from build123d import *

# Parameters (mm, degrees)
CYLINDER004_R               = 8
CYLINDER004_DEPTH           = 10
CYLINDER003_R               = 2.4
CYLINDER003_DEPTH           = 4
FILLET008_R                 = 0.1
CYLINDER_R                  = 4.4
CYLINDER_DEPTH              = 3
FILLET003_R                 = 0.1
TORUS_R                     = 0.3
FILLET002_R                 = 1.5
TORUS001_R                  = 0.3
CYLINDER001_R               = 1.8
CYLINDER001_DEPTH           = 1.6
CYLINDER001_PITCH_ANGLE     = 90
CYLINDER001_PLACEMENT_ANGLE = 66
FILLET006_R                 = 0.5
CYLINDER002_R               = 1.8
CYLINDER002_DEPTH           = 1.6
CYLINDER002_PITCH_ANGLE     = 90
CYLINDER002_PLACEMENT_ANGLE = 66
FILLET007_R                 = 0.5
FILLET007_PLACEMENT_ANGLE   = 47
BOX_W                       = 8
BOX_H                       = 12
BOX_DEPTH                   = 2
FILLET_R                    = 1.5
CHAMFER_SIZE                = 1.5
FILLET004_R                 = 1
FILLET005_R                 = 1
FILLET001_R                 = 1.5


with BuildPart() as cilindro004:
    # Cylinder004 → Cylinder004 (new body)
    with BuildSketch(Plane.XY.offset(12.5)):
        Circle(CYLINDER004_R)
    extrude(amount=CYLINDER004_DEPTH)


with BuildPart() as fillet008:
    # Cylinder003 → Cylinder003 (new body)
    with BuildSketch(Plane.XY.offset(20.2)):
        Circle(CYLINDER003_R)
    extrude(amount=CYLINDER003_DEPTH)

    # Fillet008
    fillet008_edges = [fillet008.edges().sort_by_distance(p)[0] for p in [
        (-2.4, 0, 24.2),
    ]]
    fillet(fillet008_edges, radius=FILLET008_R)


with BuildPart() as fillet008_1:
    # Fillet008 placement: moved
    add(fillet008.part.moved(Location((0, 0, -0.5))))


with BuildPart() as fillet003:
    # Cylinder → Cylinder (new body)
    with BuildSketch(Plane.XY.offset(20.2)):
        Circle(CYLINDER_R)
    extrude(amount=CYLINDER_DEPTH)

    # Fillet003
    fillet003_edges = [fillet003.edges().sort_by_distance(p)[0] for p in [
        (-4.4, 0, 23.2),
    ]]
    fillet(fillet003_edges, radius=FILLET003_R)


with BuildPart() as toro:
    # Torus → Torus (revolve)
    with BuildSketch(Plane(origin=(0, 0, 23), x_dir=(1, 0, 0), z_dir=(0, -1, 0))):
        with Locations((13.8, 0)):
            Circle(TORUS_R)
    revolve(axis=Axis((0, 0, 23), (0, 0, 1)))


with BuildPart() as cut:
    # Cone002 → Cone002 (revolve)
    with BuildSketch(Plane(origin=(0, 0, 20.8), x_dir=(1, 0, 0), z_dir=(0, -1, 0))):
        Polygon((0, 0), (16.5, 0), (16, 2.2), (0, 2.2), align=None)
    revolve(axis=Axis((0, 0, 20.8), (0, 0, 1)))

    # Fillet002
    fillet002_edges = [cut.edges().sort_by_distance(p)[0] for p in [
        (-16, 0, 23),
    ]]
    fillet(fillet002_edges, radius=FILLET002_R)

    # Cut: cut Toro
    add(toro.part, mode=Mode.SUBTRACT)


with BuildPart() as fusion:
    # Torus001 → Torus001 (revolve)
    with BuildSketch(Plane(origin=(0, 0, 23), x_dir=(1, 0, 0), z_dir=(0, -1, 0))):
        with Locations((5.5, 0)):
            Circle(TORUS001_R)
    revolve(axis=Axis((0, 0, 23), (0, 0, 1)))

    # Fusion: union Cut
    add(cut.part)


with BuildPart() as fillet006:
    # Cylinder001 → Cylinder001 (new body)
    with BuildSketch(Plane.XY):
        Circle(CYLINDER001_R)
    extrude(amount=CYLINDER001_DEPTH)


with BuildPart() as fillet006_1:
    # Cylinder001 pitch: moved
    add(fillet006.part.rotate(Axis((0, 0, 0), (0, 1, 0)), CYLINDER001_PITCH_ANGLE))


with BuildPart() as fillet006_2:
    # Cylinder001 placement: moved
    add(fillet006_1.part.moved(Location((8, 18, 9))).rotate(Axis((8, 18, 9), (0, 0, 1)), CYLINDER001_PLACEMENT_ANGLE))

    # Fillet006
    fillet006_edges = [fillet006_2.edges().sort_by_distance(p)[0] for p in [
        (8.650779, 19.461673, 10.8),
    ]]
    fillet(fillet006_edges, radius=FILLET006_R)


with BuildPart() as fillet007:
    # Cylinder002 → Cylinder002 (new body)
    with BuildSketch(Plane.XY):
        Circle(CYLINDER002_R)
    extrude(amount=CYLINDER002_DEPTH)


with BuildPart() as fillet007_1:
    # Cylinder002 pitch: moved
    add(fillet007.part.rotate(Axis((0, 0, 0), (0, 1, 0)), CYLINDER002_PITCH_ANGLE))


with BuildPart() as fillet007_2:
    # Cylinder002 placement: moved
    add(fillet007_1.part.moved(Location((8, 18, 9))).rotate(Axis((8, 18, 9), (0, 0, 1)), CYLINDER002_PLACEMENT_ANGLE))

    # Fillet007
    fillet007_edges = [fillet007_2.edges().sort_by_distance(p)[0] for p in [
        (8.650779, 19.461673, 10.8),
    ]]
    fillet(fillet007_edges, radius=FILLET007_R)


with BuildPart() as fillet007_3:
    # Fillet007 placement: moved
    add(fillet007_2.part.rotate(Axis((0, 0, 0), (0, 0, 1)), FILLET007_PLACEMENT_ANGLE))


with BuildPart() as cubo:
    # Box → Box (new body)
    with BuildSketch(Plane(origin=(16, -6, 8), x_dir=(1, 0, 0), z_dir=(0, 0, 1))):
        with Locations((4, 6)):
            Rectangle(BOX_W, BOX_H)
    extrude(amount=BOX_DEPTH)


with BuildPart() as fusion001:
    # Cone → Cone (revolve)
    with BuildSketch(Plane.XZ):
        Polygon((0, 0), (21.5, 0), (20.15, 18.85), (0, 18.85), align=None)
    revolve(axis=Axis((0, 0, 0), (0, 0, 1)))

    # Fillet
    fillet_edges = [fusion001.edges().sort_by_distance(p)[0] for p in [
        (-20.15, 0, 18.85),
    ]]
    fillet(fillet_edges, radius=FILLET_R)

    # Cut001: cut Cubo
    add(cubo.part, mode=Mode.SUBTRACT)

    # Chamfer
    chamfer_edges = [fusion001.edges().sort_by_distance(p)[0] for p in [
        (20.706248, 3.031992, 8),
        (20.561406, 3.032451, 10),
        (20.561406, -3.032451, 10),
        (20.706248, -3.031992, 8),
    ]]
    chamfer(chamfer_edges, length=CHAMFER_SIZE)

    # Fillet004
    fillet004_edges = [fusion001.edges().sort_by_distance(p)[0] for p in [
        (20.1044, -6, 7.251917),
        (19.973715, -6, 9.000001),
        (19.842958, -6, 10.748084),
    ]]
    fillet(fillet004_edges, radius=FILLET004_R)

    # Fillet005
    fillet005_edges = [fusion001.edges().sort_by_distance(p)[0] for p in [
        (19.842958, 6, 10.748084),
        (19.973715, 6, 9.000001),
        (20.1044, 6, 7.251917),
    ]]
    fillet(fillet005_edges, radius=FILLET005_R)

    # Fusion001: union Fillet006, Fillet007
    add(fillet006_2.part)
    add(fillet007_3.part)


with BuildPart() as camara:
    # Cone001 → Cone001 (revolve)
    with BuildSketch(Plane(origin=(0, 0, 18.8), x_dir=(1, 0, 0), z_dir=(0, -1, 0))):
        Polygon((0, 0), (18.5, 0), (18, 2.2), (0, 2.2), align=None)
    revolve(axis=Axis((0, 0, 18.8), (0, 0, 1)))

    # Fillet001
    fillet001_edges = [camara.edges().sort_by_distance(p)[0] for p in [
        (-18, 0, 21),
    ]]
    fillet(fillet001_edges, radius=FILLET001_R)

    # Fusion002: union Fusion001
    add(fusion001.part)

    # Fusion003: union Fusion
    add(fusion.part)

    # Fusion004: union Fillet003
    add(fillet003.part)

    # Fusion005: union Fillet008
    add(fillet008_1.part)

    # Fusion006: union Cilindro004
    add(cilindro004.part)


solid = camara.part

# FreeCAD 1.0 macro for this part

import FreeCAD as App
import Part
import Sketcher
from FreeCAD import Vector


def edges_at(feature, points):
    """Names of the edges that pass closest to the given points."""
    edges = feature.Shape.Edges
    near = lambda p: min(range(len(edges)), key=lambda i: edges[i].distToShape(Part.Vertex(*p))[0])
    return sorted({f"Edge{near(p) + 1}" for p in points})


def add_polygon(sketch, points):
    """Adds a closed chain of lines whose ends are joined by coincident constraints."""
    first, n = sketch.GeometryCount, len(points)
    for a, b in zip(points, points[1:] + points[:1]):
        sketch.addGeometry(Part.LineSegment(App.Vector(*a, 0), App.Vector(*b, 0)), False)
    for i in range(n):
        sketch.addConstraint(Sketcher.Constraint("Coincident", first + i, 2, first + (i + 1) % n, 1))

doc = App.newDocument("Part")
body = doc.addObject("PartDesign::Body", "Body")

sketch1 = body.newObject("Sketcher::SketchObject", "Sketch")
sketch1.AttachmentSupport = (doc.getObject("XY_Plane"), [""])
sketch1.MapMode = "FlatFace"
sketch1.AttachmentOffset = App.Placement(Vector(0, 0, 12.5), App.Rotation())
sketch1.addGeometry(Part.Circle(Vector(0, 0, 0), Vector(0, 0, 1), 8), False)
sketch1.addConstraint([
    Sketcher.Constraint("Coincident", 0, 3, -1, 1),
    Sketcher.Constraint("Diameter", 0, 16.0),
])
pad1 = body.newObject("PartDesign::Pad", "Pad")
pad1.Profile = sketch1
pad1.Length = 10
body2 = doc.addObject("PartDesign::Body", "Body001")

sketch2 = body2.newObject("Sketcher::SketchObject", "Sketch001")
sketch2.AttachmentSupport = (doc.getObject("XY_Plane001"), [""])
sketch2.MapMode = "FlatFace"
sketch2.AttachmentOffset = App.Placement(Vector(0, 0, 20.2), App.Rotation())
sketch2.addGeometry(Part.Circle(Vector(0, 0, 0), Vector(0, 0, 1), 2.4), False)
sketch2.addConstraint([
    Sketcher.Constraint("Coincident", 0, 3, -1, 1),
    Sketcher.Constraint("Diameter", 0, 4.8),
])
pad2 = body2.newObject("PartDesign::Pad", "Pad001")
pad2.Profile = sketch2
pad2.Length = 4
doc.recompute()

fillet = body2.newObject("PartDesign::Fillet", "Fillet")
fillet.Base = (pad2, edges_at(pad2, [(-2.4, 0, 24.2)]))
fillet.Radius = 0.1
body3 = doc.addObject("PartDesign::Body", "Body002")
doc.recompute()

body2.Placement = App.Placement(Vector(0, 0, -0.5), App.Rotation(Vector(0, 0, 1), 0))
boolean = body3.newObject("PartDesign::Boolean", "Boolean")
boolean.Type = "Fuse"
boolean.addObjects([body2])
body4 = doc.addObject("PartDesign::Body", "Body003")

sketch3 = body4.newObject("Sketcher::SketchObject", "Sketch002")
sketch3.AttachmentSupport = (doc.getObject("XY_Plane003"), [""])
sketch3.MapMode = "FlatFace"
sketch3.AttachmentOffset = App.Placement(Vector(0, 0, 20.2), App.Rotation())
sketch3.addGeometry(Part.Circle(Vector(0, 0, 0), Vector(0, 0, 1), 4.4), False)
sketch3.addConstraint([
    Sketcher.Constraint("Coincident", 0, 3, -1, 1),
    Sketcher.Constraint("Diameter", 0, 8.8),
])
pad3 = body4.newObject("PartDesign::Pad", "Pad002")
pad3.Profile = sketch3
pad3.Length = 3
doc.recompute()

fillet2 = body4.newObject("PartDesign::Fillet", "Fillet001")
fillet2.Base = (pad3, edges_at(pad3, [(-4.4, 0, 23.2)]))
fillet2.Radius = 0.1
body5 = doc.addObject("PartDesign::Body", "Body004")

sketch4 = body5.newObject("Sketcher::SketchObject", "Sketch003")
sketch4.AttachmentSupport = (doc.getObject("XZ_Plane004"), [""])
sketch4.MapMode = "FlatFace"
sketch4.addGeometry(Part.Circle(Vector(13.8, 23, 0), Vector(0, 0, 1), 0.3), False)
sketch4.addConstraint([
    Sketcher.Constraint("Diameter", 0, 0.6),
    Sketcher.Constraint("DistanceY", -1, 1, 0, 3, 23.0),
    Sketcher.Constraint("DistanceX", -1, 1, 0, 3, 13.8),
])
revolution = body5.newObject("PartDesign::Revolution", "Revolution")
revolution.Profile = sketch4
revolution.ReferenceAxis = (sketch4, ["V_Axis"])
revolution.Angle = 360
body6 = doc.addObject("PartDesign::Body", "Body005")

sketch5 = body6.newObject("Sketcher::SketchObject", "Sketch004")
sketch5.AttachmentSupport = (doc.getObject("XZ_Plane005"), [""])
sketch5.MapMode = "FlatFace"
add_polygon(sketch5, [(0, 20.8), (16.5, 20.8), (16, 23), (0, 23)])
sketch5.addConstraint([
    Sketcher.Constraint("Horizontal", 0),
    Sketcher.Constraint("Horizontal", 2),
    Sketcher.Constraint("Vertical", 3),
    Sketcher.Constraint("PointOnObject", 2, 2, -2),
    Sketcher.Constraint("DistanceX", 2, 2, 2, 1, 16.0),
    Sketcher.Constraint("DistanceX", 0, 1, 0, 2, 16.5),
    Sketcher.Constraint("DistanceY", 3, 2, 3, 1, 2.2),
    Sketcher.Constraint("DistanceY", -1, 1, 1, 2, 23.0),
])
revolution2 = body6.newObject("PartDesign::Revolution", "Revolution001")
revolution2.Profile = sketch5
revolution2.ReferenceAxis = (sketch5, ["V_Axis"])
revolution2.Angle = 360
doc.recompute()

fillet3 = body6.newObject("PartDesign::Fillet", "Fillet002")
fillet3.Base = (revolution2, edges_at(revolution2, [(-16, 0, 23)]))
fillet3.Radius = 1.5
doc.recompute()

boolean2 = body6.newObject("PartDesign::Boolean", "Boolean001")
boolean2.Type = "Cut"
boolean2.addObjects([body5])
body7 = doc.addObject("PartDesign::Body", "Body006")

sketch6 = body7.newObject("Sketcher::SketchObject", "Sketch005")
sketch6.AttachmentSupport = (doc.getObject("XZ_Plane006"), [""])
sketch6.MapMode = "FlatFace"
sketch6.addGeometry(Part.Circle(Vector(5.5, 23, 0), Vector(0, 0, 1), 0.3), False)
sketch6.addConstraint([
    Sketcher.Constraint("Diameter", 0, 0.6),
    Sketcher.Constraint("DistanceY", -1, 1, 0, 3, 23.0),
    Sketcher.Constraint("DistanceX", -1, 1, 0, 3, 5.5),
])
revolution3 = body7.newObject("PartDesign::Revolution", "Revolution002")
revolution3.Profile = sketch6
revolution3.ReferenceAxis = (sketch6, ["V_Axis"])
revolution3.Angle = 360
doc.recompute()

boolean3 = body7.newObject("PartDesign::Boolean", "Boolean002")
boolean3.Type = "Fuse"
boolean3.addObjects([body6])
body8 = doc.addObject("PartDesign::Body", "Body007")

sketch7 = body8.newObject("Sketcher::SketchObject", "Sketch006")
sketch7.AttachmentSupport = (doc.getObject("XY_Plane007"), [""])
sketch7.MapMode = "FlatFace"
sketch7.addGeometry(Part.Circle(Vector(0, 0, 0), Vector(0, 0, 1), 1.8), False)
sketch7.addConstraint([
    Sketcher.Constraint("Coincident", 0, 3, -1, 1),
    Sketcher.Constraint("Diameter", 0, 3.6),
])
pad4 = body8.newObject("PartDesign::Pad", "Pad003")
pad4.Profile = sketch7
pad4.Length = 1.6
body9 = doc.addObject("PartDesign::Body", "Body008")
doc.recompute()

body8.Placement = App.Placement(Vector(0, 0, 0), App.Rotation(Vector(0, 1, 0), 90))
boolean4 = body9.newObject("PartDesign::Boolean", "Boolean003")
boolean4.Type = "Fuse"
boolean4.addObjects([body8])
body10 = doc.addObject("PartDesign::Body", "Body009")
doc.recompute()

body9.Placement = App.Placement(Vector(8, 18, 9), App.Rotation(Vector(0, 0, 1), 66))
boolean5 = body10.newObject("PartDesign::Boolean", "Boolean004")
boolean5.Type = "Fuse"
boolean5.addObjects([body9])
doc.recompute()

fillet4 = body10.newObject("PartDesign::Fillet", "Fillet003")
fillet4.Base = (boolean5, edges_at(boolean5, [(8.651, 19.462, 10.8)]))
fillet4.Radius = 0.5
body11 = doc.addObject("PartDesign::Body", "Body010")

sketch8 = body11.newObject("Sketcher::SketchObject", "Sketch007")
sketch8.AttachmentSupport = (doc.getObject("XY_Plane010"), [""])
sketch8.MapMode = "FlatFace"
sketch8.addGeometry(Part.Circle(Vector(0, 0, 0), Vector(0, 0, 1), 1.8), False)
sketch8.addConstraint([
    Sketcher.Constraint("Coincident", 0, 3, -1, 1),
    Sketcher.Constraint("Diameter", 0, 3.6),
])
pad5 = body11.newObject("PartDesign::Pad", "Pad004")
pad5.Profile = sketch8
pad5.Length = 1.6
body12 = doc.addObject("PartDesign::Body", "Body011")
doc.recompute()

body11.Placement = App.Placement(Vector(0, 0, 0), App.Rotation(Vector(0, 1, 0), 90))
boolean6 = body12.newObject("PartDesign::Boolean", "Boolean005")
boolean6.Type = "Fuse"
boolean6.addObjects([body11])
body13 = doc.addObject("PartDesign::Body", "Body012")
doc.recompute()

body12.Placement = App.Placement(Vector(8, 18, 9), App.Rotation(Vector(0, 0, 1), 66))
boolean7 = body13.newObject("PartDesign::Boolean", "Boolean006")
boolean7.Type = "Fuse"
boolean7.addObjects([body12])
doc.recompute()

fillet5 = body13.newObject("PartDesign::Fillet", "Fillet004")
fillet5.Base = (boolean7, edges_at(boolean7, [(8.651, 19.462, 10.8)]))
fillet5.Radius = 0.5
body14 = doc.addObject("PartDesign::Body", "Body013")
doc.recompute()

body13.Placement = App.Placement(Vector(0, 0, 0), App.Rotation(Vector(0, 0, 1), 47))
boolean8 = body14.newObject("PartDesign::Boolean", "Boolean007")
boolean8.Type = "Fuse"
boolean8.addObjects([body13])
body15 = doc.addObject("PartDesign::Body", "Body014")

sketch9 = body15.newObject("Sketcher::SketchObject", "Sketch008")
sketch9.AttachmentSupport = (doc.getObject("XY_Plane014"), [""])
sketch9.MapMode = "FlatFace"
sketch9.AttachmentOffset = App.Placement(Vector(0, 0, 8), App.Rotation())
add_polygon(sketch9, [(16, 6), (16, -6), (24, -6), (24, 6)])
sketch9.addConstraint([
    Sketcher.Constraint("Vertical", 0),
    Sketcher.Constraint("Horizontal", 1),
    Sketcher.Constraint("Vertical", 2),
    Sketcher.Constraint("Horizontal", 3),
    Sketcher.Constraint("DistanceX", 1, 1, 1, 2, 8.0),
    Sketcher.Constraint("DistanceY", 0, 2, 0, 1, 12.0),
    Sketcher.Constraint("DistanceX", -1, 1, 0, 2, 16.0),
    Sketcher.Constraint("DistanceY", 0, 2, -1, 1, 6.0),
])
pad6 = body15.newObject("PartDesign::Pad", "Pad005")
pad6.Profile = sketch9
pad6.Length = 2
body16 = doc.addObject("PartDesign::Body", "Body015")

sketch10 = body16.newObject("Sketcher::SketchObject", "Sketch009")
sketch10.AttachmentSupport = (doc.getObject("XZ_Plane015"), [""])
sketch10.MapMode = "FlatFace"
add_polygon(sketch10, [(0, 0), (21.5, 0), (20.15, 18.85), (0, 18.85)])
sketch10.addConstraint([
    Sketcher.Constraint("Horizontal", 0),
    Sketcher.Constraint("Horizontal", 2),
    Sketcher.Constraint("Vertical", 3),
    Sketcher.Constraint("Coincident", 3, 2, -1, 1),
    Sketcher.Constraint("DistanceX", 0, 1, 0, 2, 21.5),
    Sketcher.Constraint("DistanceX", 2, 2, 2, 1, 20.15),
    Sketcher.Constraint("DistanceY", 3, 2, 3, 1, 18.85),
])
revolution4 = body16.newObject("PartDesign::Revolution", "Revolution003")
revolution4.Profile = sketch10
revolution4.ReferenceAxis = (sketch10, ["V_Axis"])
revolution4.Angle = 360
doc.recompute()

fillet6 = body16.newObject("PartDesign::Fillet", "Fillet005")
fillet6.Base = (revolution4, edges_at(revolution4, [(-20.15, 0, 18.85)]))
fillet6.Radius = 1.5
doc.recompute()

boolean9 = body16.newObject("PartDesign::Boolean", "Boolean008")
boolean9.Type = "Cut"
boolean9.addObjects([body15])
doc.recompute()

chamfer = body16.newObject("PartDesign::Chamfer", "Chamfer")
chamfer.Base = (boolean9, edges_at(boolean9, [
    (20.706, 3.032, 8),
    (20.561, 3.032, 10),
    (20.561, -3.032, 10),
    (20.706, -3.032, 8),
]))
chamfer.Size = 1.5
doc.recompute()

fillet7 = body16.newObject("PartDesign::Fillet", "Fillet006")
fillet7.Base = (chamfer, edges_at(chamfer, [(20.104, -6, 7.252), (19.974, -6, 9), (19.843, -6, 10.748)]))
fillet7.Radius = 1
doc.recompute()

fillet8 = body16.newObject("PartDesign::Fillet", "Fillet007")
fillet8.Base = (fillet7, edges_at(fillet7, [(19.843, 6, 10.748), (19.974, 6, 9), (20.104, 6, 7.252)]))
fillet8.Radius = 1
doc.recompute()

boolean10 = body16.newObject("PartDesign::Boolean", "Boolean009")
boolean10.Type = "Fuse"
boolean10.addObjects([body10])
doc.recompute()

boolean11 = body16.newObject("PartDesign::Boolean", "Boolean010")
boolean11.Type = "Fuse"
boolean11.addObjects([body14])
body17 = doc.addObject("PartDesign::Body", "Body016")

sketch11 = body17.newObject("Sketcher::SketchObject", "Sketch010")
sketch11.AttachmentSupport = (doc.getObject("XZ_Plane016"), [""])
sketch11.MapMode = "FlatFace"
add_polygon(sketch11, [(0, 18.8), (18.5, 18.8), (18, 21), (0, 21)])
sketch11.addConstraint([
    Sketcher.Constraint("Horizontal", 0),
    Sketcher.Constraint("Horizontal", 2),
    Sketcher.Constraint("Vertical", 3),
    Sketcher.Constraint("PointOnObject", 2, 2, -2),
    Sketcher.Constraint("DistanceX", 2, 2, 2, 1, 18.0),
    Sketcher.Constraint("DistanceX", 0, 1, 0, 2, 18.5),
    Sketcher.Constraint("DistanceY", 3, 2, 3, 1, 2.2),
    Sketcher.Constraint("DistanceY", -1, 1, 1, 2, 21.0),
])
revolution5 = body17.newObject("PartDesign::Revolution", "Revolution004")
revolution5.Profile = sketch11
revolution5.ReferenceAxis = (sketch11, ["V_Axis"])
revolution5.Angle = 360
doc.recompute()

fillet9 = body17.newObject("PartDesign::Fillet", "Fillet008")
fillet9.Base = (revolution5, edges_at(revolution5, [(-18, 0, 21)]))
fillet9.Radius = 1.5
doc.recompute()

boolean12 = body17.newObject("PartDesign::Boolean", "Boolean011")
boolean12.Type = "Fuse"
boolean12.addObjects([body16])
doc.recompute()

boolean13 = body17.newObject("PartDesign::Boolean", "Boolean012")
boolean13.Type = "Fuse"
boolean13.addObjects([body7])
doc.recompute()

boolean14 = body17.newObject("PartDesign::Boolean", "Boolean013")
boolean14.Type = "Fuse"
boolean14.addObjects([body4])
doc.recompute()

boolean15 = body17.newObject("PartDesign::Boolean", "Boolean014")
boolean15.Type = "Fuse"
boolean15.addObjects([body3])
doc.recompute()

boolean16 = body17.newObject("PartDesign::Boolean", "Boolean015")
boolean16.Type = "Fuse"
boolean16.addObjects([body])

doc.recompute()
